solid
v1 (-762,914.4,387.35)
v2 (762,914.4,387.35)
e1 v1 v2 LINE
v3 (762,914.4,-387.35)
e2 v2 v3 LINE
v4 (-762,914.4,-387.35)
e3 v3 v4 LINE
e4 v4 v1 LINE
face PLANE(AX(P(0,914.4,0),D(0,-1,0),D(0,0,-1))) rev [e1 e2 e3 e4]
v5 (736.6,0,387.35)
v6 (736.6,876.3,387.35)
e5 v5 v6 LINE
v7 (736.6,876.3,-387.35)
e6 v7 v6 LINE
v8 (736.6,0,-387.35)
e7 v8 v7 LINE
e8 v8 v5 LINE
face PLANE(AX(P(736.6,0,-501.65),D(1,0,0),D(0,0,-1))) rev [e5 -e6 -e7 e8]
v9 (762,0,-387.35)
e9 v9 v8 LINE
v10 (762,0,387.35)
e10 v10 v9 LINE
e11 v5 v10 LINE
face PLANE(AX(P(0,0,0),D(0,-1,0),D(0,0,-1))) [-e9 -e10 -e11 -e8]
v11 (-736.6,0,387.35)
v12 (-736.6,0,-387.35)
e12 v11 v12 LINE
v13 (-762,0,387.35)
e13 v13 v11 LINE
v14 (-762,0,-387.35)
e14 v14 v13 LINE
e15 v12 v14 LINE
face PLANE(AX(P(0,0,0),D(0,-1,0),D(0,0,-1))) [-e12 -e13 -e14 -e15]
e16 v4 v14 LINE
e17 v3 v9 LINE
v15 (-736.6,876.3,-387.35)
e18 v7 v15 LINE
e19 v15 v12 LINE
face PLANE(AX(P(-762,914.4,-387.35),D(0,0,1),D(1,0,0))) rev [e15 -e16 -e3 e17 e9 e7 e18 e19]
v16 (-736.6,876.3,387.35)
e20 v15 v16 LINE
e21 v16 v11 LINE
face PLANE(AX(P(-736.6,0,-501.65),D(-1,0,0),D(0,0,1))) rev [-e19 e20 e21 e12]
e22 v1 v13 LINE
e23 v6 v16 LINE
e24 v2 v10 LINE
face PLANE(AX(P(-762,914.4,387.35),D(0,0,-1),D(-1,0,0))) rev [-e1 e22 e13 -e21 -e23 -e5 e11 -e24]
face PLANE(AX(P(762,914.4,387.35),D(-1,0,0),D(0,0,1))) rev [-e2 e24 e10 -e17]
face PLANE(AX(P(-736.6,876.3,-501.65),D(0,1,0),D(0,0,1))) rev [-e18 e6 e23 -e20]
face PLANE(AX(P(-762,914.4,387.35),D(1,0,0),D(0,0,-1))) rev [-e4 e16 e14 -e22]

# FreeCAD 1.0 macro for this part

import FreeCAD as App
import Part
import Sketcher

V = App.Vector
Q = App.Units.Quantity

doc = App.newDocument("Part")
params = doc.addObject("Spreadsheet::Sheet", "Params")
for row, (alias, value) in enumerate([
    ("sketch1_width", "60 in"),
    ("sketch1_height", "30.5 in"),
    ("pad1_length", "36 in"),
    ("sketch2_width", "58 in"),
    ("sketch2_height", "34.5 in"),
    ("pocket1_length", "35 in"),
], start=1):
    params.set(f"A{row}", alias)
    params.set(f"B{row}", "=" + value)
    params.setAlias(f"B{row}", alias)

body = doc.addObject("PartDesign::Body", "Body")

# Sketch on XZ plane
sketch1 = body.newObject("Sketcher::SketchObject", "Sketch")
sketch1.AttachmentSupport = (doc.getObject("XZ_Plane"), [""])
sketch1.MapMode = "FlatFace"
sketch1.addGeometry([
    Part.LineSegment(V(-762, -387, 0), V(-762, 387, 0)),
    Part.LineSegment(V(-762, 387, 0), V(762, 387, 0)),
    Part.LineSegment(V(762, 387, 0), V(762, -387, 0)),
    Part.LineSegment(V(762, -387, 0), V(-762, -387, 0)),
], False)
sketch1.addConstraint([
    Sketcher.Constraint("Coincident", 0, 2, 1, 1),
    Sketcher.Constraint("Coincident", 1, 2, 2, 1),
    Sketcher.Constraint("Coincident", 2, 2, 3, 1),
    Sketcher.Constraint("Coincident", 3, 2, 0, 1),
    Sketcher.Constraint("Vertical", 0),
    Sketcher.Constraint("Horizontal", 1),
    Sketcher.Constraint("Vertical", 2),
    Sketcher.Constraint("Horizontal", 3),
    Sketcher.Constraint("Symmetric", 0, 2, 2, 2, -1, 1),
    Sketcher.Constraint("DistanceX", 1, 1, 1, 2, Q("60 in")),
    Sketcher.Constraint("DistanceY", 0, 1, 0, 2, Q("30.5 in")),
])
sketch1.setExpression("Constraints[9]", "Params.sketch1_width")
sketch1.setExpression("Constraints[10]", "Params.sketch1_height")
pad1 = body.newObject("PartDesign::Pad", "Pad")
pad1.Profile = sketch1
pad1.setExpression("Length", "Params.pad1_length")
pad1.Reversed = True

# Sketch on XY plane
sketch2 = body.newObject("Sketcher::SketchObject", "Sketch001")
sketch2.AttachmentSupport = (doc.getObject("XY_Plane"), [""])
sketch2.MapMode = "FlatFace"
sketch2.AttachmentOffset = App.Placement(V(0, 0, 15.25 * 25.4), App.Rotation())
sketch2.addGeometry([
    Part.LineSegment(V(-737, 876, 0), V(-737, 0, 0)),
    Part.LineSegment(V(-737, 0, 0), V(737, 0, 0)),
    Part.LineSegment(V(737, 0, 0), V(737, 876, 0)),
    Part.LineSegment(V(737, 876, 0), V(-737, 876, 0)),
], False)
sketch2.addConstraint([
    Sketcher.Constraint("Coincident", 0, 2, 1, 1),
    Sketcher.Constraint("Coincident", 1, 2, 2, 1),
    Sketcher.Constraint("Coincident", 2, 2, 3, 1),
    Sketcher.Constraint("Coincident", 3, 2, 0, 1),
    Sketcher.Constraint("Vertical", 0),
    Sketcher.Constraint("Horizontal", 1),
    Sketcher.Constraint("Vertical", 2),
    Sketcher.Constraint("Horizontal", 3),
    Sketcher.Constraint("Symmetric", 0, 2, 1, 2, -1, 1),
    Sketcher.Constraint("DistanceX", 1, 1, 1, 2, Q("58 in")),
    Sketcher.Constraint("DistanceY", 0, 2, 0, 1, Q("34.5 in")),
])
sketch2.setExpression("Constraints[9]", "Params.sketch2_width")
sketch2.setExpression("Constraints[10]", "Params.sketch2_height")
pocket1 = body.newObject("PartDesign::Pocket", "Pocket")
pocket1.Profile = sketch2
pocket1.setExpression("Length", "Params.pocket1_length")

doc.recompute()
